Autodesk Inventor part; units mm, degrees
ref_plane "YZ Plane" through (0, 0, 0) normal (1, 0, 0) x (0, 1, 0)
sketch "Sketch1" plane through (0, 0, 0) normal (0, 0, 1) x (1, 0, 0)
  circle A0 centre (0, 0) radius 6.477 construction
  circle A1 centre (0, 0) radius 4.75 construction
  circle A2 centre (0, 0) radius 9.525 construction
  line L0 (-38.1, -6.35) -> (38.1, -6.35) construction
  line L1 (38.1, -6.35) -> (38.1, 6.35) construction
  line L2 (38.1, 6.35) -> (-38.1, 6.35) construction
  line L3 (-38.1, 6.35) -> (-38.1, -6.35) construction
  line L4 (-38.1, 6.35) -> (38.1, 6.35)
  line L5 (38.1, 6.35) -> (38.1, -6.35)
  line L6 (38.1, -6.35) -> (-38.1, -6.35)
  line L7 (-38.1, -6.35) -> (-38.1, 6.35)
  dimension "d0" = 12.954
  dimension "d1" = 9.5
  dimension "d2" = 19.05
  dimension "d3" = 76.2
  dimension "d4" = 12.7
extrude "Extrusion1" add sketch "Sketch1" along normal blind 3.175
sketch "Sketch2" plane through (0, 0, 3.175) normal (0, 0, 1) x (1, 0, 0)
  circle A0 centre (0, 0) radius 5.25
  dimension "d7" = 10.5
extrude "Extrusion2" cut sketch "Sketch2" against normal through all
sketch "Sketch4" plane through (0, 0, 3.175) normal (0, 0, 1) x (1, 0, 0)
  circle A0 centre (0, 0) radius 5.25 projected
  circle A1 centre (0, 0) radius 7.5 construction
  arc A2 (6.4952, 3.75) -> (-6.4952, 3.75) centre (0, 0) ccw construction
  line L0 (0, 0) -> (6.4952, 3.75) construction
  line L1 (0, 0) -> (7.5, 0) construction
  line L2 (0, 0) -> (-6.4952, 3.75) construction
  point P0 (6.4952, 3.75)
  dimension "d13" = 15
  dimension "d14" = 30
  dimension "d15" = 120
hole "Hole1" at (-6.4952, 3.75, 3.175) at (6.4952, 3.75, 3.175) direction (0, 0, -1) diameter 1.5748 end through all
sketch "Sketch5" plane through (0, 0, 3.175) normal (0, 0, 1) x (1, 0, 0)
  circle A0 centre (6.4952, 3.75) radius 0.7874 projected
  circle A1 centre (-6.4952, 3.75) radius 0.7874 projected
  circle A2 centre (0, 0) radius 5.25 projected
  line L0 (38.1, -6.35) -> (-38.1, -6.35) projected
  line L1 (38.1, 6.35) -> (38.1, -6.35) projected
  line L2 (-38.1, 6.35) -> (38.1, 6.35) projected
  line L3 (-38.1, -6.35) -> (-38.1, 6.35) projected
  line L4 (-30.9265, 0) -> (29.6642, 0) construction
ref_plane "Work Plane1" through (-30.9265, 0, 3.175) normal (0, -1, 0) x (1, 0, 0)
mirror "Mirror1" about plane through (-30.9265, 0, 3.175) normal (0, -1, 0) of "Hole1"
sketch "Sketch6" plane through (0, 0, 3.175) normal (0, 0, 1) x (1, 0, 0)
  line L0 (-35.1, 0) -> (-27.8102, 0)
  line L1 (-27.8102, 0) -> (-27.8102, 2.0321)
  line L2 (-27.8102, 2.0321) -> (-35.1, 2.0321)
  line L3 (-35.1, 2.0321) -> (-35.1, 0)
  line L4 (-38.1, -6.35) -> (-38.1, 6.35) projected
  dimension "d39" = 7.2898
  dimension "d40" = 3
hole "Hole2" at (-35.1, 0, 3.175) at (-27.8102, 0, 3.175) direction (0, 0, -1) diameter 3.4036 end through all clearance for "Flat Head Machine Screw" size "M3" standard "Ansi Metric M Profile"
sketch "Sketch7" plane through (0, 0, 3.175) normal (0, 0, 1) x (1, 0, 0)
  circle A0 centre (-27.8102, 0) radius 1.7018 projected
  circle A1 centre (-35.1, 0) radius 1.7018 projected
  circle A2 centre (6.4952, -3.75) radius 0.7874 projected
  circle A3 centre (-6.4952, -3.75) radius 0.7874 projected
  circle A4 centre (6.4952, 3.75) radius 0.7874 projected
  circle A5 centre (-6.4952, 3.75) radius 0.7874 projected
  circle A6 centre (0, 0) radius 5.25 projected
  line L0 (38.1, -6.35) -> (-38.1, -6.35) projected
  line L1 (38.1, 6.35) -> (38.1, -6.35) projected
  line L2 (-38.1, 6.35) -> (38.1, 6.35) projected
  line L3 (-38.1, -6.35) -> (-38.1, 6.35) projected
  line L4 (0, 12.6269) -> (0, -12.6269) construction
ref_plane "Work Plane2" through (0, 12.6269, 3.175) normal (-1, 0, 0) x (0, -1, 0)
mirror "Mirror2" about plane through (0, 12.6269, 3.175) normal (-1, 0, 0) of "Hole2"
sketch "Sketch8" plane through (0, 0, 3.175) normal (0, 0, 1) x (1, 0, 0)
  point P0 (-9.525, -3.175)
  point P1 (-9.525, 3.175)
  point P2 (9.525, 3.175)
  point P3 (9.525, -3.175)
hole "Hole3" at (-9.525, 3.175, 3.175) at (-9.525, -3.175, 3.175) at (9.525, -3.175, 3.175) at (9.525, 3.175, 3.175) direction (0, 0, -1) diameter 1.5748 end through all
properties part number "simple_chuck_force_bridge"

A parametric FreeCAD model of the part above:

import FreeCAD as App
import Part
import Sketcher

V = App.Vector
Q = App.Units.Quantity


def add_polygon(sketch, points):
    """Adds a closed chain of lines whose ends are joined by coincident constraints."""
    first, n = sketch.GeometryCount, len(points)
    for a, b in zip(points, points[1:] + points[:1]):
        sketch.addGeometry(Part.LineSegment(App.Vector(*a, 0), App.Vector(*b, 0)), False)
    for i in range(n):
        sketch.addConstraint(Sketcher.Constraint("Coincident", first + i, 2, first + (i + 1) % n, 1))

doc = App.newDocument("Part")
params = doc.addObject("Spreadsheet::Sheet", "Params")
for row, (alias, value) in enumerate([
    ("sketch1_width", "3 in"),
    ("sketch1_height", "0.5 in"),
    ("pad1_length", "0.125 in"),
    ("sketch3_diameter", "0.062 in"),
    ("hole_diameter", "0.062 in"),
    ("sketch4_diameter", "0.134 in"),
    ("hole2_diameter", "0.134 in"),
    ("sketch5_diameter", "0.062 in"),
    ("hole3_diameter", "0.062 in"),
], start=1):
    params.set(f"A{row}", alias)
    params.set(f"B{row}", "=" + value)
    params.setAlias(f"B{row}", alias)

body = doc.addObject("PartDesign::Body", "Body")

sketch1 = body.newObject("Sketcher::SketchObject", "Sketch")
sketch1.AttachmentSupport = (doc.getObject("XY_Plane"), [""])
sketch1.MapMode = "FlatFace"
add_polygon(sketch1, [(38.1, 6.35), (-38.1, 6.35), (-38.1, -6.35), (38.1, -6.35)])
sketch1.addConstraint([
    Sketcher.Constraint("Horizontal", 0),
    Sketcher.Constraint("Vertical", 1),
    Sketcher.Constraint("Horizontal", 2),
    Sketcher.Constraint("Vertical", 3),
    Sketcher.Constraint("Symmetric", 0, 2, 2, 2, -1, 1),
    Sketcher.Constraint("DistanceX", 0, 2, 0, 1, Q("3 in")),
    Sketcher.Constraint("DistanceY", 1, 2, 1, 1, Q("0.5 in")),
])
sketch1.setExpression("Constraints[9]", "Params.sketch1_width")
sketch1.setExpression("Constraints[10]", "Params.sketch1_height")
pad1 = body.newObject("PartDesign::Pad", "Pad")
pad1.Profile = sketch1
pad1.setExpression("Length", "Params.pad1_length")

sketch2 = body.newObject("Sketcher::SketchObject", "Sketch001")
sketch2.AttachmentSupport = (doc.getObject("XY_Plane"), [""])
sketch2.MapMode = "FlatFace"
sketch2.AttachmentOffset = App.Placement(V(0, 0, 0.125 * 25.4), App.Rotation())
sketch2.addGeometry(Part.Circle(V(0, 0, 0), V(0, 0, 1), 5.25), False)
sketch2.addConstraint([
    Sketcher.Constraint("Coincident", 0, 3, -1, 1),
    Sketcher.Constraint("Diameter", 0, Q("10.5 mm")),
])
pocket1 = body.newObject("PartDesign::Pocket", "Pocket")
pocket1.Profile = sketch2
pocket1.Type = "ThroughAll"

sketch3 = body.newObject("Sketcher::SketchObject", "Sketch002")
sketch3.AttachmentSupport = (doc.getObject("XY_Plane"), [""])
sketch3.MapMode = "FlatFace"
sketch3.AttachmentOffset = App.Placement(V(0, 0, 0.125 * 25.4), App.Rotation())
sketch3.addGeometry([
    Part.Circle(V(-6.4952, 3.75, 0), V(0, 0, 1), 0.7874),
    Part.Circle(V(6.4952, 3.75, 0), V(0, 0, 1), 0.7874),
], False)
sketch3.addConstraint([
    Sketcher.Constraint("Equal", 0, 1),
    Sketcher.Constraint("Symmetric", 0, 3, 1, 3, -2),
    Sketcher.Constraint("Diameter", 0, Q("0.062 in")),
    Sketcher.Constraint("DistanceX", 0, 3, -1, 1, Q("6.4952 mm")),
    Sketcher.Constraint("DistanceY", -1, 1, 0, 3, Q("3.75 mm")),
])
sketch3.setExpression("Constraints[2]", "Params.sketch3_diameter")
doc.recompute()
hole = body.newObject("PartDesign::Hole", "Hole")
hole.Profile = sketch3
hole.ThreadType = "None"
hole.setExpression("Diameter", "Params.hole_diameter")
hole.DepthType = "ThroughAll"
doc.recompute()

mirrored = body.newObject("PartDesign::Mirrored", "Mirrored")
mirrored.Originals = [hole]
mirrored.MirrorPlane = (doc.getObject("XZ_Plane"), [""])
body.Tip = mirrored

sketch4 = body.newObject("Sketcher::SketchObject", "Sketch003")
sketch4.AttachmentSupport = (doc.getObject("XY_Plane"), [""])
sketch4.MapMode = "FlatFace"
sketch4.AttachmentOffset = App.Placement(V(0, 0, 0.125 * 25.4), App.Rotation())
sketch4.addGeometry([
    Part.Circle(V(-35.1, 0, 0), V(0, 0, 1), 1.7018),
    Part.Circle(V(-27.8102, 0, 0), V(0, 0, 1), 1.7018),
], False)
sketch4.addConstraint([
    Sketcher.Constraint("Equal", 0, 1),
    Sketcher.Constraint("PointOnObject", 0, 3, -1),
    Sketcher.Constraint("PointOnObject", 1, 3, -1),
    Sketcher.Constraint("Diameter", 0, Q("0.134 in")),
    Sketcher.Constraint("DistanceX", 0, 3, 1, 3, Q("0.287 in")),
    Sketcher.Constraint("DistanceX", 0, 3, -1, 1, Q("1.3819 in")),
])
sketch4.setExpression("Constraints[3]", "Params.sketch4_diameter")
doc.recompute()
hole2 = body.newObject("PartDesign::Hole", "Hole001")
hole2.Profile = sketch4
hole2.ThreadType = "None"
hole2.setExpression("Diameter", "Params.hole2_diameter")
hole2.DepthType = "ThroughAll"
doc.recompute()

mirrored2 = body.newObject("PartDesign::Mirrored", "Mirrored001")
mirrored2.Originals = [hole2]
mirrored2.MirrorPlane = (doc.getObject("YZ_Plane"), [""])
body.Tip = mirrored2

sketch5 = body.newObject("Sketcher::SketchObject", "Sketch004")
sketch5.AttachmentSupport = (doc.getObject("XY_Plane"), [""])
sketch5.MapMode = "FlatFace"
sketch5.AttachmentOffset = App.Placement(V(0, 0, 0.125 * 25.4), App.Rotation())
sketch5.addGeometry([
    Part.Circle(V(-9.525, 3.175, 0), V(0, 0, 1), 0.7874),
    Part.Circle(V(-9.525, -3.175, 0), V(0, 0, 1), 0.7874),
    Part.Circle(V(9.525, -3.175, 0), V(0, 0, 1), 0.7874),
    Part.Circle(V(9.525, 3.175, 0), V(0, 0, 1), 0.7874),
], False)
sketch5.addConstraint([
    Sketcher.Constraint("Equal", 0, 1),
    Sketcher.Constraint("Equal", 1, 2),
    Sketcher.Constraint("Equal", 2, 3),
    Sketcher.Constraint("Symmetric", 0, 3, 2, 3, -1, 1),
    Sketcher.Constraint("Symmetric", 1, 3, 3, 3, -1, 1),
    Sketcher.Constraint("Symmetric", 1, 3, 2, 3, -2),
    Sketcher.Constraint("Diameter", 0, Q("0.062 in")),
    Sketcher.Constraint("DistanceY", 1, 3, 0, 3, Q("0.25 in")),
    Sketcher.Constraint("DistanceX", 1, 3, 2, 3, Q("0.75 in")),
])
sketch5.setExpression("Constraints[6]", "Params.sketch5_diameter")
doc.recompute()
hole3 = body.newObject("PartDesign::Hole", "Hole002")
hole3.Profile = sketch5
hole3.ThreadType = "None"
hole3.setExpression("Diameter", "Params.hole3_diameter")
hole3.DepthType = "ThroughAll"

doc.recompute()
